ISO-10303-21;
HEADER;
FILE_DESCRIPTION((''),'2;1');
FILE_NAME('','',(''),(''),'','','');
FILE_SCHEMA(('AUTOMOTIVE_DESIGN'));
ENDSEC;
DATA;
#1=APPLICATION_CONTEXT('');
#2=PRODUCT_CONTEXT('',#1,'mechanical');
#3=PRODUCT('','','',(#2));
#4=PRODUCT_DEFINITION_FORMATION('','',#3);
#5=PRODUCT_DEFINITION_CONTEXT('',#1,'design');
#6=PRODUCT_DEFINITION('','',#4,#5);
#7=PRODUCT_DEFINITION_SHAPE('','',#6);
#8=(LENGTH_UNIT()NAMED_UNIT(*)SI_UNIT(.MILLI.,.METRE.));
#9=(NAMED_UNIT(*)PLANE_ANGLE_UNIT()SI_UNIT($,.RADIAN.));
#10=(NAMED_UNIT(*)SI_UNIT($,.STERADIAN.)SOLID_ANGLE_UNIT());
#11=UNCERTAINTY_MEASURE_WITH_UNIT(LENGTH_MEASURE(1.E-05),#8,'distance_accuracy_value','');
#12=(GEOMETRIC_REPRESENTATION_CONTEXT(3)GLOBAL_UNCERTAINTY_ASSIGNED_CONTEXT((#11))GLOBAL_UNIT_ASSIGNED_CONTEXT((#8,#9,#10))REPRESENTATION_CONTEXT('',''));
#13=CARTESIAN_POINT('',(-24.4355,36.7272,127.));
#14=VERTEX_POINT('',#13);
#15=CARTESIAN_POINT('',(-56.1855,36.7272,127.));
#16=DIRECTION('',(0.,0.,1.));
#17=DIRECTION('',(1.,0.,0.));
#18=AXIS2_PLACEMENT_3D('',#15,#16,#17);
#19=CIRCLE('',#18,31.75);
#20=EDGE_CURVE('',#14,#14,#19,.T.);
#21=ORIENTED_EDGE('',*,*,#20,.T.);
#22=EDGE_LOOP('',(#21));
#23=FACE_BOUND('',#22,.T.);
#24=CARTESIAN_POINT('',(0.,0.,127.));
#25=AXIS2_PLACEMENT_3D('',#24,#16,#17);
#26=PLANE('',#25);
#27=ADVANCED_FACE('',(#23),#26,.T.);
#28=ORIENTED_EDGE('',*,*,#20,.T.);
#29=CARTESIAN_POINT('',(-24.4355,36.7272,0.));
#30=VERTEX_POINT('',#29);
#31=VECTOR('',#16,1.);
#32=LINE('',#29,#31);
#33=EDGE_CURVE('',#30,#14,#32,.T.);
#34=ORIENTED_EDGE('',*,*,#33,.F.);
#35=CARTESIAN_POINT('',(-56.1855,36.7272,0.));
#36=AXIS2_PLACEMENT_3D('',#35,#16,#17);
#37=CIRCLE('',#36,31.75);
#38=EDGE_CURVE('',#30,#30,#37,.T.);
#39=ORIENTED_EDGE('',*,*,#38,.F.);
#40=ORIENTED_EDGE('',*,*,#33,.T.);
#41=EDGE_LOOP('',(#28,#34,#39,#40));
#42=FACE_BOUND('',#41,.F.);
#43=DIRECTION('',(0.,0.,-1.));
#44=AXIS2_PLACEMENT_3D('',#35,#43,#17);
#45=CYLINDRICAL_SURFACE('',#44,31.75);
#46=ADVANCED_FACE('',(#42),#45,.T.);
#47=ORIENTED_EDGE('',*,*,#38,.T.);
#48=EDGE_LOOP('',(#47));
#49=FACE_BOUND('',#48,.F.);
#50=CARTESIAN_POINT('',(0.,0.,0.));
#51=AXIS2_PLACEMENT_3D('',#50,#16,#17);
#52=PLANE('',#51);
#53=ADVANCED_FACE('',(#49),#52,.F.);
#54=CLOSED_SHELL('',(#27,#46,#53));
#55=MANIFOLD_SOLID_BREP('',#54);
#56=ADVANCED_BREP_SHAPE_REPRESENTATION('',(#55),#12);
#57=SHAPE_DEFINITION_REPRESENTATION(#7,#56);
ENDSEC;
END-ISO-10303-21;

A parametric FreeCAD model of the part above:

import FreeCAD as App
import Part
import Sketcher

V = App.Vector
Q = App.Units.Quantity

doc = App.newDocument("Part")
params = doc.addObject("Spreadsheet::Sheet", "Params")
for row, (alias, value) in enumerate([
    ("sketch1_diameter", "2.5 in"),
    ("pad1_length", "5 in"),
], start=1):
    params.set(f"A{row}", alias)
    params.set(f"B{row}", "=" + value)
    params.setAlias(f"B{row}", alias)

body = doc.addObject("PartDesign::Body", "Body")

sketch1 = body.newObject("Sketcher::SketchObject", "Sketch")
sketch1.AttachmentSupport = (doc.getObject("XY_Plane"), [""])
sketch1.MapMode = "FlatFace"
sketch1.addGeometry(Part.Circle(V(-56, 37, 0), V(0, 0, 1), 32), False)
sketch1.addConstraint(Sketcher.Constraint("Diameter", 0, Q("2.5 in")))
sketch1.addConstraint(Sketcher.Constraint("DistanceX", 0, 3, -1, 1, 56.1855))
sketch1.addConstraint(Sketcher.Constraint("DistanceY", -1, 1, 0, 3, 36.7272))
sketch1.setExpression("Constraints[0]", "Params.sketch1_diameter")
pad1 = body.newObject("PartDesign::Pad", "Pad")
pad1.Profile = sketch1
pad1.setExpression("Length", "Params.pad1_length")

doc.recompute()
